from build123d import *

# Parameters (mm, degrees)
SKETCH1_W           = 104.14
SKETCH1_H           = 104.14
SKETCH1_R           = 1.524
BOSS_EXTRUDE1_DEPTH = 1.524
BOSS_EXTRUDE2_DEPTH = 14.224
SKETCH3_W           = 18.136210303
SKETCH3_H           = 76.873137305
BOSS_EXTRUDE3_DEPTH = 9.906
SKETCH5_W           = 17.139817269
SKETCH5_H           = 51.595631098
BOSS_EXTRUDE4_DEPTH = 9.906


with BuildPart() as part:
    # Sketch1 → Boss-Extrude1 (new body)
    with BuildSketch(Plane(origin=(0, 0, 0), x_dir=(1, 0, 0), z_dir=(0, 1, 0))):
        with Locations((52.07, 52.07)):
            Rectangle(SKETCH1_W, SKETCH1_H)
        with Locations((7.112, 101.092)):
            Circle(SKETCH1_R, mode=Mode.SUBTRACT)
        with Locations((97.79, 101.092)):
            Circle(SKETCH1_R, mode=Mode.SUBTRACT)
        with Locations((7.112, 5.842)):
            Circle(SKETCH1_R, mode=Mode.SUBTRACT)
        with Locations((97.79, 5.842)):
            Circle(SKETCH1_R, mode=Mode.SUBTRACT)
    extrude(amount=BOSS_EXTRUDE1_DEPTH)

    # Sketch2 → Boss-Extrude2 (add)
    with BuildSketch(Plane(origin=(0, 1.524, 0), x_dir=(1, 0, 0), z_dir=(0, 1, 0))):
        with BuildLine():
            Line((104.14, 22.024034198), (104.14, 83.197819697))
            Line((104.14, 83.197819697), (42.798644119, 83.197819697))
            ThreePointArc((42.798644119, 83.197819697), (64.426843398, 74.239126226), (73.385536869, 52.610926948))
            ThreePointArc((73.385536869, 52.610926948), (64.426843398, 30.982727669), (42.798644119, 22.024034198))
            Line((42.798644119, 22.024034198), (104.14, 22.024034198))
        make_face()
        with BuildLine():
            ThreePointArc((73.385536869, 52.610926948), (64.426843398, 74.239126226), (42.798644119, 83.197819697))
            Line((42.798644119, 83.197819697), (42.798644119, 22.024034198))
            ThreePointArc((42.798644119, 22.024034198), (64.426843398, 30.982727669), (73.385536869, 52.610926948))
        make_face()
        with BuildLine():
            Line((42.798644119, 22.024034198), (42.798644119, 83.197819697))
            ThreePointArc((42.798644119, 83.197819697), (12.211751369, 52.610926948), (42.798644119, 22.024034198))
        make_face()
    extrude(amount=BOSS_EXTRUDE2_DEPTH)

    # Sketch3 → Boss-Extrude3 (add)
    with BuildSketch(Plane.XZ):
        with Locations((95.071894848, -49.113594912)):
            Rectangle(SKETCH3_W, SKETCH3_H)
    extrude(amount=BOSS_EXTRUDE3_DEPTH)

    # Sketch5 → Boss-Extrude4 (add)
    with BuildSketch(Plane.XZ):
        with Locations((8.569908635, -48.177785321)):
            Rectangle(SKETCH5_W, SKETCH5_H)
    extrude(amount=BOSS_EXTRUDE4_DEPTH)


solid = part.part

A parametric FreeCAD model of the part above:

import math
import FreeCAD as App
import Part
import Sketcher
Q = App.Units.Quantity


def add_polygon(sketch, points):
    """Adds a closed chain of lines whose ends are joined by coincident constraints."""
    first, n = sketch.GeometryCount, len(points)
    for a, b in zip(points, points[1:] + points[:1]):
        sketch.addGeometry(Part.LineSegment(App.Vector(*a, 0), App.Vector(*b, 0)), False)
    for i in range(n):
        sketch.addConstraint(Sketcher.Constraint("Coincident", first + i, 2, first + (i + 1) % n, 1))

doc = App.newDocument("Part")
params = doc.addObject("Spreadsheet::Sheet", "Params")
for row, (alias, value) in enumerate([
    ("sketch1_diameter", "0.12 in"),
    ("sketch1_width", "4.1 in"),
    ("pad1_length", "0.06 in"),
    ("pad2_length", "0.56 in"),
    ("pad3_length", "0.39 in"),
    ("pad4_length", "0.39 in"),
], start=1):
    params.set(f"A{row}", alias)
    params.set(f"B{row}", "=" + value)
    params.setAlias(f"B{row}", alias)

body = doc.addObject("PartDesign::Body", "Body")

# Sketch on XZ plane
sketch1 = doc.addObject("Sketcher::SketchObject", "Sketch")
body.addObject(sketch1)
sketch1.AttachmentSupport = (doc.XZ_Plane, [""])
sketch1.MapMode = "FlatFace"
add_polygon(sketch1, [(0, -104.1), (0, 0), (104.1, 0), (104.1, -104.1)])  # lines 0-3
sketch1.addGeometry(Part.Circle(App.Vector(7.1, -5.8, 0), App.Vector(0, 0, 1), 1.5), False)  # 4
sketch1.addGeometry(Part.Circle(App.Vector(97.8, -5.8, 0), App.Vector(0, 0, 1), 1.5), False)  # 5
sketch1.addGeometry(Part.Circle(App.Vector(7.1, -101.1, 0), App.Vector(0, 0, 1), 1.5), False)  # 6
sketch1.addGeometry(Part.Circle(App.Vector(97.8, -101.1, 0), App.Vector(0, 0, 1), 1.5), False)  # 7
sketch1.addConstraint(Sketcher.Constraint("Vertical", 0))
sketch1.addConstraint(Sketcher.Constraint("Horizontal", 1))
sketch1.addConstraint(Sketcher.Constraint("Vertical", 2))
sketch1.addConstraint(Sketcher.Constraint("Horizontal", 3))
sketch1.addConstraint(Sketcher.Constraint("Coincident", 0, 2, -1, 1))
sketch1.addConstraint(Sketcher.Constraint("Equal", 4, 5))
sketch1.addConstraint(Sketcher.Constraint("Equal", 5, 6))
sketch1.addConstraint(Sketcher.Constraint("Equal", 6, 7))
sketch1.addConstraint(Sketcher.Constraint("Horizontal", 4, 3, 5, 3))
sketch1.addConstraint(Sketcher.Constraint("Horizontal", 6, 3, 7, 3))
sketch1.addConstraint(Sketcher.Constraint("Vertical", 4, 3, 6, 3))
sketch1.addConstraint(Sketcher.Constraint("Vertical", 5, 3, 7, 3))
sketch1.addConstraint(Sketcher.Constraint("Equal", 3, 0))
sketch1.addConstraint(Sketcher.Constraint("Diameter", 4, Q("0.12 in")))
sketch1.addConstraint(Sketcher.Constraint("DistanceX", 1, 1, 1, 2, Q("4.1 in")))
sketch1.addConstraint(Sketcher.Constraint("DistanceX", -1, 1, 4, 3, Q("0.28 in")))
sketch1.addConstraint(Sketcher.Constraint("DistanceY", 4, 3, -1, 1, Q("0.23 in")))
sketch1.addConstraint(Sketcher.Constraint("DistanceX", -1, 1, 5, 3, Q("3.85 in")))
sketch1.addConstraint(Sketcher.Constraint("DistanceY", 6, 3, -1, 1, Q("3.98 in")))
sketch1.setExpression("Constraints[17]", "Params.sketch1_diameter")
sketch1.setExpression("Constraints[18]", "Params.sketch1_width")
pad1 = doc.addObject("PartDesign::Pad", "Pad")
body.addObject(pad1)
pad1.Profile = sketch1
pad1.setExpression("Length", "Params.pad1_length")
pad1.Reversed = True

# Sketch on XZ plane
sketch2 = doc.addObject("Sketcher::SketchObject", "Sketch001")
body.addObject(sketch2)
sketch2.AttachmentSupport = (doc.XZ_Plane, [""])
sketch2.MapMode = "FlatFace"
sketch2.AttachmentOffset = App.Placement(App.Vector(0, 0, -0.06 * 25.4), App.Rotation())
sketch2.addGeometry(Part.LineSegment(App.Vector(104, -83, 0), App.Vector(43, -83, 0)), False)
sketch2.addGeometry(Part.ArcOfCircle(Part.Circle(App.Vector(43, -53, 0), App.Vector(0, 0, 1), 31), math.radians(90), math.radians(270)), False)
sketch2.addGeometry(Part.LineSegment(App.Vector(43, -22, 0), App.Vector(104, -22, 0)), False)
sketch2.addGeometry(Part.LineSegment(App.Vector(104, -22, 0), App.Vector(104, -83, 0)), False)
sketch2.addConstraint(Sketcher.Constraint("Tangent", 0, 2, 1, 2))
sketch2.addConstraint(Sketcher.Constraint("Tangent", 1, 1, 2, 1))
sketch2.addConstraint(Sketcher.Constraint("Coincident", 2, 2, 3, 1))
sketch2.addConstraint(Sketcher.Constraint("Coincident", 3, 2, 0, 1))
sketch2.addConstraint(Sketcher.Constraint("Horizontal", 0))
sketch2.addConstraint(Sketcher.Constraint("Horizontal", 2))
sketch2.addConstraint(Sketcher.Constraint("Vertical", 3))
sketch2.addConstraint(Sketcher.Constraint("DistanceX", -1, 1, 2, 2, Q("4.1 in")))
sketch2.addConstraint(Sketcher.Constraint("Radius", 1, 30.586893))
sketch2.addConstraint(Sketcher.Constraint("DistanceX", 0, 2, 0, 1, 61.341356))
sketch2.addConstraint(Sketcher.Constraint("DistanceY", 0, 2, -1, 1, 83.19782))
pad2 = doc.addObject("PartDesign::Pad", "Pad001")
body.addObject(pad2)
pad2.Profile = sketch2
pad2.setExpression("Length", "Params.pad2_length")
pad2.Reversed = True

# Sketch on XZ plane
sketch3 = doc.addObject("Sketcher::SketchObject", "Sketch002")
body.addObject(sketch3)
sketch3.AttachmentSupport = (doc.XZ_Plane, [""])
sketch3.MapMode = "FlatFace"
add_polygon(sketch3, [(86, -11), (86, -88), (104, -88), (104, -11)])  # lines 0-3
sketch3.addConstraint(Sketcher.Constraint("Vertical", 0))
sketch3.addConstraint(Sketcher.Constraint("Horizontal", 1))
sketch3.addConstraint(Sketcher.Constraint("Vertical", 2))
sketch3.addConstraint(Sketcher.Constraint("Horizontal", 3))
sketch3.addConstraint(Sketcher.Constraint("DistanceX", -1, 1, 1, 2, Q("4.1 in")))
sketch3.addConstraint(Sketcher.Constraint("DistanceX", 1, 1, 1, 2, 18.13621))
sketch3.addConstraint(Sketcher.Constraint("DistanceY", 0, 2, 0, 1, 76.873137))
sketch3.addConstraint(Sketcher.Constraint("DistanceY", 0, 2, -1, 1, 87.550164))
pad3 = doc.addObject("PartDesign::Pad", "Pad002")
body.addObject(pad3)
pad3.Profile = sketch3
pad3.setExpression("Length", "Params.pad3_length")

# Sketch on XZ plane
sketch4 = doc.addObject("Sketcher::SketchObject", "Sketch003")
body.addObject(sketch4)
sketch4.AttachmentSupport = (doc.XZ_Plane, [""])
sketch4.MapMode = "FlatFace"
add_polygon(sketch4, [(0, -22), (0, -74), (17, -74), (17, -22)])  # lines 0-3
sketch4.addConstraint(Sketcher.Constraint("Vertical", 0))
sketch4.addConstraint(Sketcher.Constraint("Horizontal", 1))
sketch4.addConstraint(Sketcher.Constraint("Vertical", 2))
sketch4.addConstraint(Sketcher.Constraint("Horizontal", 3))
sketch4.addConstraint(Sketcher.Constraint("PointOnObject", 0, 2, -2))
sketch4.addConstraint(Sketcher.Constraint("DistanceY", 0, 2, 0, 1, 51.595631))
sketch4.addConstraint(Sketcher.Constraint("DistanceY", 0, 2, -1, 1, 73.975601))
sketch4.addConstraint(Sketcher.Constraint("DistanceX", 1, 1, 1, 2, 17.139817))
pad4 = doc.addObject("PartDesign::Pad", "Pad003")
body.addObject(pad4)
pad4.Profile = sketch4
pad4.setExpression("Length", "Params.pad4_length")

doc.recompute()
